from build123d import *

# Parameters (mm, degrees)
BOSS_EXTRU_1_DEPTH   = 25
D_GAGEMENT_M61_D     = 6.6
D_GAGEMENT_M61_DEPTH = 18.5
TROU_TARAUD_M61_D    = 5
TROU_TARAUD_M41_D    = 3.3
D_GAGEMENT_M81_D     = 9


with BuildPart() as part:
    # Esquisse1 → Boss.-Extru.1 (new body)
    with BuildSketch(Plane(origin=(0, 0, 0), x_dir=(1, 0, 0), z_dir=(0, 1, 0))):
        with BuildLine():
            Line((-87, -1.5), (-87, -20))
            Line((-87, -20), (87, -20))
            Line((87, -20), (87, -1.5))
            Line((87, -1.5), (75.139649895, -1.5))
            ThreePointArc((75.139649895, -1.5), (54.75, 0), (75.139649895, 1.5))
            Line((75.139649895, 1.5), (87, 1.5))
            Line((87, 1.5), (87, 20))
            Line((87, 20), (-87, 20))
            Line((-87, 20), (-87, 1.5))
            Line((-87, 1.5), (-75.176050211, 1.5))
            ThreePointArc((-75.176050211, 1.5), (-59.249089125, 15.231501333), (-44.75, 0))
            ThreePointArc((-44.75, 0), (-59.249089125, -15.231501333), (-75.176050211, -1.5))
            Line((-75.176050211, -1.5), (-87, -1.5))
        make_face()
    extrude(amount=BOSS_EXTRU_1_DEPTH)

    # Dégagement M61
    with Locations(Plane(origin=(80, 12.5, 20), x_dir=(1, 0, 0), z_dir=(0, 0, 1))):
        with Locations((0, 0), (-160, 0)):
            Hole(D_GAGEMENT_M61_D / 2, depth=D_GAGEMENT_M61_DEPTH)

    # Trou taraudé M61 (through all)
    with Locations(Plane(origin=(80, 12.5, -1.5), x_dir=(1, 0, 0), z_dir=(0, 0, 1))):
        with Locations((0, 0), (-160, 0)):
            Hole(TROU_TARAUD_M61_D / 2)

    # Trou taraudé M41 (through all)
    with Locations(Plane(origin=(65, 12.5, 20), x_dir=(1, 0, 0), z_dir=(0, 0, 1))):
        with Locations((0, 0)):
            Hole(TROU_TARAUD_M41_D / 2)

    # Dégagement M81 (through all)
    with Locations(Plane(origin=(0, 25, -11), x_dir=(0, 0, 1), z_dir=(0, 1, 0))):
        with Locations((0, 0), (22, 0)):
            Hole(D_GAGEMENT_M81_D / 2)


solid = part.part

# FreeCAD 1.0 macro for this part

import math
import FreeCAD as App
import Part
import Sketcher
Q = App.Units.Quantity

doc = App.newDocument("Part")
body = doc.addObject("PartDesign::Body", "Body")

sketch1 = body.newObject("Sketcher::SketchObject", "Sketch")
sketch1.AttachmentSupport = (doc.getObject("XZ_Plane"), [""])
sketch1.MapMode = "FlatFace"
sketch1.addGeometry([
    Part.LineSegment(App.Vector(-87, 1.5, 0), App.Vector(-87, 20, 0)),
    Part.LineSegment(App.Vector(-87, 20, 0), App.Vector(87, 20, 0)),
    Part.LineSegment(App.Vector(87, 20, 0), App.Vector(87, 1.5, 0)),
    Part.LineSegment(App.Vector(87, 1.5, 0), App.Vector(75.13965, 1.5, 0)),
    Part.ArcOfCircle(Part.Circle(App.Vector(65, 0, 0), App.Vector(0, 0, 1), 10.25), math.radians(8.414968), math.radians(351.585032)),
    Part.LineSegment(App.Vector(75.13965, -1.5, 0), App.Vector(87, -1.5, 0)),
    Part.LineSegment(App.Vector(87, -1.5, 0), App.Vector(87, -20, 0)),
    Part.LineSegment(App.Vector(87, -20, 0), App.Vector(-87, -20, 0)),
    Part.LineSegment(App.Vector(-87, -20, 0), App.Vector(-87, -1.5, 0)),
    Part.LineSegment(App.Vector(-87, -1.5, 0), App.Vector(-75.17605, -1.5, 0)),
    Part.ArcOfCircle(Part.Circle(App.Vector(-60, 0, 0), App.Vector(0, 0, 1), 15.25), math.radians(-174.355222), math.radians(0)),
    Part.ArcOfCircle(Part.Circle(App.Vector(-60, 0, 0), App.Vector(0, 0, 1), 15.25), math.radians(0), math.radians(174.355222)),
    Part.LineSegment(App.Vector(-75.17605, 1.5, 0), App.Vector(-87, 1.5, 0)),
], False)
sketch1.addConstraint([
    Sketcher.Constraint("Coincident", 0, 2, 1, 1),
    Sketcher.Constraint("Coincident", 1, 2, 2, 1),
    Sketcher.Constraint("Coincident", 2, 2, 3, 1),
    Sketcher.Constraint("Coincident", 3, 2, 4, 1),
    Sketcher.Constraint("Coincident", 4, 2, 5, 1),
    Sketcher.Constraint("Coincident", 5, 2, 6, 1),
    Sketcher.Constraint("Coincident", 6, 2, 7, 1),
    Sketcher.Constraint("Coincident", 7, 2, 8, 1),
    Sketcher.Constraint("Coincident", 8, 2, 9, 1),
    Sketcher.Constraint("Coincident", 9, 2, 10, 1),
    Sketcher.Constraint("Tangent", 10, 2, 11, 1),
    Sketcher.Constraint("Coincident", 11, 2, 12, 1),
    Sketcher.Constraint("Coincident", 12, 2, 0, 1),
    Sketcher.Constraint("Vertical", 0),
    Sketcher.Constraint("Horizontal", 1),
    Sketcher.Constraint("Vertical", 2),
    Sketcher.Constraint("Horizontal", 3),
    Sketcher.Constraint("Horizontal", 5),
    Sketcher.Constraint("Vertical", 6),
    Sketcher.Constraint("Horizontal", 7),
    Sketcher.Constraint("Vertical", 8),
    Sketcher.Constraint("Horizontal", 9),
    Sketcher.Constraint("Horizontal", 12),
    Sketcher.Constraint("Equal", 10, 11),
    Sketcher.Constraint("Symmetric", 0, 2, 6, 2, -1, 1),
    Sketcher.Constraint("Symmetric", 2, 2, 8, 2, -1, 1),
    Sketcher.Constraint("Symmetric", 5, 2, 8, 2, -2),
    Sketcher.Constraint("Symmetric", 9, 2, 11, 2, -1),
    Sketcher.Constraint("PointOnObject", 4, 3, -1),
    Sketcher.Constraint("PointOnObject", 10, 2, -1),
    Sketcher.Constraint("DistanceX", 1, 1, 1, 2, Q("174 mm")),
    Sketcher.Constraint("Radius", 4, Q("10.25 mm")),
    Sketcher.Constraint("Radius", 10, Q("15.25 mm")),
    Sketcher.Constraint("DistanceY", 0, 1, 0, 2, Q("18.5 mm")),
    Sketcher.Constraint("DistanceX", -1, 1, 4, 3, Q("65 mm")),
    Sketcher.Constraint("DistanceX", 10, 3, -1, 1, Q("60 mm")),
    Sketcher.Constraint("DistanceY", -1, 1, 0, 2, Q("20 mm")),
])
pad1 = body.newObject("PartDesign::Pad", "Pad")
pad1.Profile = sketch1
pad1.Length = 25
pad1.Reversed = True

sketch2 = body.newObject("Sketcher::SketchObject", "Sketch001")
sketch2.AttachmentSupport = (doc.getObject("XY_Plane"), [""])
sketch2.MapMode = "FlatFace"
sketch2.AttachmentOffset = App.Placement(App.Vector(0, 0, 20), App.Rotation())
sketch2.addGeometry([
    Part.Circle(App.Vector(80, 12.5, 0), App.Vector(0, 0, 1), 3.3),
    Part.Circle(App.Vector(-80, 12.5, 0), App.Vector(0, 0, 1), 3.3),
], False)
sketch2.addConstraint([
    Sketcher.Constraint("Equal", 0, 1),
    Sketcher.Constraint("Symmetric", 0, 3, 1, 3, -2),
    Sketcher.Constraint("Diameter", 0, Q("6.6 mm")),
    Sketcher.Constraint("DistanceX", -1, 1, 0, 3, Q("80 mm")),
    Sketcher.Constraint("DistanceY", -1, 1, 0, 3, Q("12.5 mm")),
])
doc.recompute()
hole = body.newObject("PartDesign::Hole", "Hole")
hole.Profile = sketch2
hole.ThreadType = "None"
hole.Diameter = 6.6
hole.DepthType = "Dimension"
hole.Depth = 18.5
hole.DrillPoint = "Flat"

sketch3 = body.newObject("Sketcher::SketchObject", "Sketch002")
sketch3.AttachmentSupport = (doc.getObject("XY_Plane"), [""])
sketch3.MapMode = "FlatFace"
sketch3.AttachmentOffset = App.Placement(App.Vector(0, 0, -1.5), App.Rotation())
sketch3.addGeometry([
    Part.Circle(App.Vector(80, 12.5, 0), App.Vector(0, 0, 1), 2.5),
    Part.Circle(App.Vector(-80, 12.5, 0), App.Vector(0, 0, 1), 2.5),
], False)
sketch3.addConstraint([
    Sketcher.Constraint("Equal", 0, 1),
    Sketcher.Constraint("Symmetric", 0, 3, 1, 3, -2),
    Sketcher.Constraint("Diameter", 0, Q("5 mm")),
    Sketcher.Constraint("DistanceX", -1, 1, 0, 3, Q("80 mm")),
    Sketcher.Constraint("DistanceY", -1, 1, 0, 3, Q("12.5 mm")),
])
doc.recompute()
hole2 = body.newObject("PartDesign::Hole", "Hole001")
hole2.Profile = sketch3
hole2.ThreadType = "None"
hole2.Diameter = 5
hole2.DepthType = "ThroughAll"

sketch4 = body.newObject("Sketcher::SketchObject", "Sketch003")
sketch4.AttachmentSupport = (doc.getObject("XY_Plane"), [""])
sketch4.MapMode = "FlatFace"
sketch4.AttachmentOffset = App.Placement(App.Vector(0, 0, 20), App.Rotation())
sketch4.addGeometry(Part.Circle(App.Vector(65, 12.5, 0), App.Vector(0, 0, 1), 1.65), False)
sketch4.addConstraint([
    Sketcher.Constraint("Diameter", 0, Q("3.3 mm")),
    Sketcher.Constraint("DistanceX", -1, 1, 0, 3, Q("65 mm")),
    Sketcher.Constraint("DistanceY", -1, 1, 0, 3, Q("12.5 mm")),
])
doc.recompute()
hole3 = body.newObject("PartDesign::Hole", "Hole002")
hole3.Profile = sketch4
hole3.ThreadType = "None"
hole3.Diameter = 3.3
hole3.DepthType = "ThroughAll"

sketch5 = body.newObject("Sketcher::SketchObject", "Sketch004")
sketch5.AttachmentSupport = (doc.getObject("XZ_Plane"), [""])
sketch5.MapMode = "FlatFace"
sketch5.AttachmentOffset = App.Placement(App.Vector(0, 0, -25), App.Rotation())
sketch5.addGeometry([
    Part.Circle(App.Vector(0, -11, 0), App.Vector(0, 0, 1), 4.5),
    Part.Circle(App.Vector(0, 11, 0), App.Vector(0, 0, 1), 4.5),
], False)
sketch5.addConstraint([
    Sketcher.Constraint("Equal", 0, 1),
    Sketcher.Constraint("Symmetric", 0, 3, 1, 3, -1, 1),
    Sketcher.Constraint("PointOnObject", 0, 3, -2),
    Sketcher.Constraint("Diameter", 0, Q("9 mm")),
    Sketcher.Constraint("DistanceY", 0, 3, -1, 1, Q("11 mm")),
])
doc.recompute()
hole4 = body.newObject("PartDesign::Hole", "Hole003")
hole4.Profile = sketch5
hole4.ThreadType = "None"
hole4.Diameter = 9
hole4.DepthType = "ThroughAll"
hole4.Reversed = True

doc.recompute()
